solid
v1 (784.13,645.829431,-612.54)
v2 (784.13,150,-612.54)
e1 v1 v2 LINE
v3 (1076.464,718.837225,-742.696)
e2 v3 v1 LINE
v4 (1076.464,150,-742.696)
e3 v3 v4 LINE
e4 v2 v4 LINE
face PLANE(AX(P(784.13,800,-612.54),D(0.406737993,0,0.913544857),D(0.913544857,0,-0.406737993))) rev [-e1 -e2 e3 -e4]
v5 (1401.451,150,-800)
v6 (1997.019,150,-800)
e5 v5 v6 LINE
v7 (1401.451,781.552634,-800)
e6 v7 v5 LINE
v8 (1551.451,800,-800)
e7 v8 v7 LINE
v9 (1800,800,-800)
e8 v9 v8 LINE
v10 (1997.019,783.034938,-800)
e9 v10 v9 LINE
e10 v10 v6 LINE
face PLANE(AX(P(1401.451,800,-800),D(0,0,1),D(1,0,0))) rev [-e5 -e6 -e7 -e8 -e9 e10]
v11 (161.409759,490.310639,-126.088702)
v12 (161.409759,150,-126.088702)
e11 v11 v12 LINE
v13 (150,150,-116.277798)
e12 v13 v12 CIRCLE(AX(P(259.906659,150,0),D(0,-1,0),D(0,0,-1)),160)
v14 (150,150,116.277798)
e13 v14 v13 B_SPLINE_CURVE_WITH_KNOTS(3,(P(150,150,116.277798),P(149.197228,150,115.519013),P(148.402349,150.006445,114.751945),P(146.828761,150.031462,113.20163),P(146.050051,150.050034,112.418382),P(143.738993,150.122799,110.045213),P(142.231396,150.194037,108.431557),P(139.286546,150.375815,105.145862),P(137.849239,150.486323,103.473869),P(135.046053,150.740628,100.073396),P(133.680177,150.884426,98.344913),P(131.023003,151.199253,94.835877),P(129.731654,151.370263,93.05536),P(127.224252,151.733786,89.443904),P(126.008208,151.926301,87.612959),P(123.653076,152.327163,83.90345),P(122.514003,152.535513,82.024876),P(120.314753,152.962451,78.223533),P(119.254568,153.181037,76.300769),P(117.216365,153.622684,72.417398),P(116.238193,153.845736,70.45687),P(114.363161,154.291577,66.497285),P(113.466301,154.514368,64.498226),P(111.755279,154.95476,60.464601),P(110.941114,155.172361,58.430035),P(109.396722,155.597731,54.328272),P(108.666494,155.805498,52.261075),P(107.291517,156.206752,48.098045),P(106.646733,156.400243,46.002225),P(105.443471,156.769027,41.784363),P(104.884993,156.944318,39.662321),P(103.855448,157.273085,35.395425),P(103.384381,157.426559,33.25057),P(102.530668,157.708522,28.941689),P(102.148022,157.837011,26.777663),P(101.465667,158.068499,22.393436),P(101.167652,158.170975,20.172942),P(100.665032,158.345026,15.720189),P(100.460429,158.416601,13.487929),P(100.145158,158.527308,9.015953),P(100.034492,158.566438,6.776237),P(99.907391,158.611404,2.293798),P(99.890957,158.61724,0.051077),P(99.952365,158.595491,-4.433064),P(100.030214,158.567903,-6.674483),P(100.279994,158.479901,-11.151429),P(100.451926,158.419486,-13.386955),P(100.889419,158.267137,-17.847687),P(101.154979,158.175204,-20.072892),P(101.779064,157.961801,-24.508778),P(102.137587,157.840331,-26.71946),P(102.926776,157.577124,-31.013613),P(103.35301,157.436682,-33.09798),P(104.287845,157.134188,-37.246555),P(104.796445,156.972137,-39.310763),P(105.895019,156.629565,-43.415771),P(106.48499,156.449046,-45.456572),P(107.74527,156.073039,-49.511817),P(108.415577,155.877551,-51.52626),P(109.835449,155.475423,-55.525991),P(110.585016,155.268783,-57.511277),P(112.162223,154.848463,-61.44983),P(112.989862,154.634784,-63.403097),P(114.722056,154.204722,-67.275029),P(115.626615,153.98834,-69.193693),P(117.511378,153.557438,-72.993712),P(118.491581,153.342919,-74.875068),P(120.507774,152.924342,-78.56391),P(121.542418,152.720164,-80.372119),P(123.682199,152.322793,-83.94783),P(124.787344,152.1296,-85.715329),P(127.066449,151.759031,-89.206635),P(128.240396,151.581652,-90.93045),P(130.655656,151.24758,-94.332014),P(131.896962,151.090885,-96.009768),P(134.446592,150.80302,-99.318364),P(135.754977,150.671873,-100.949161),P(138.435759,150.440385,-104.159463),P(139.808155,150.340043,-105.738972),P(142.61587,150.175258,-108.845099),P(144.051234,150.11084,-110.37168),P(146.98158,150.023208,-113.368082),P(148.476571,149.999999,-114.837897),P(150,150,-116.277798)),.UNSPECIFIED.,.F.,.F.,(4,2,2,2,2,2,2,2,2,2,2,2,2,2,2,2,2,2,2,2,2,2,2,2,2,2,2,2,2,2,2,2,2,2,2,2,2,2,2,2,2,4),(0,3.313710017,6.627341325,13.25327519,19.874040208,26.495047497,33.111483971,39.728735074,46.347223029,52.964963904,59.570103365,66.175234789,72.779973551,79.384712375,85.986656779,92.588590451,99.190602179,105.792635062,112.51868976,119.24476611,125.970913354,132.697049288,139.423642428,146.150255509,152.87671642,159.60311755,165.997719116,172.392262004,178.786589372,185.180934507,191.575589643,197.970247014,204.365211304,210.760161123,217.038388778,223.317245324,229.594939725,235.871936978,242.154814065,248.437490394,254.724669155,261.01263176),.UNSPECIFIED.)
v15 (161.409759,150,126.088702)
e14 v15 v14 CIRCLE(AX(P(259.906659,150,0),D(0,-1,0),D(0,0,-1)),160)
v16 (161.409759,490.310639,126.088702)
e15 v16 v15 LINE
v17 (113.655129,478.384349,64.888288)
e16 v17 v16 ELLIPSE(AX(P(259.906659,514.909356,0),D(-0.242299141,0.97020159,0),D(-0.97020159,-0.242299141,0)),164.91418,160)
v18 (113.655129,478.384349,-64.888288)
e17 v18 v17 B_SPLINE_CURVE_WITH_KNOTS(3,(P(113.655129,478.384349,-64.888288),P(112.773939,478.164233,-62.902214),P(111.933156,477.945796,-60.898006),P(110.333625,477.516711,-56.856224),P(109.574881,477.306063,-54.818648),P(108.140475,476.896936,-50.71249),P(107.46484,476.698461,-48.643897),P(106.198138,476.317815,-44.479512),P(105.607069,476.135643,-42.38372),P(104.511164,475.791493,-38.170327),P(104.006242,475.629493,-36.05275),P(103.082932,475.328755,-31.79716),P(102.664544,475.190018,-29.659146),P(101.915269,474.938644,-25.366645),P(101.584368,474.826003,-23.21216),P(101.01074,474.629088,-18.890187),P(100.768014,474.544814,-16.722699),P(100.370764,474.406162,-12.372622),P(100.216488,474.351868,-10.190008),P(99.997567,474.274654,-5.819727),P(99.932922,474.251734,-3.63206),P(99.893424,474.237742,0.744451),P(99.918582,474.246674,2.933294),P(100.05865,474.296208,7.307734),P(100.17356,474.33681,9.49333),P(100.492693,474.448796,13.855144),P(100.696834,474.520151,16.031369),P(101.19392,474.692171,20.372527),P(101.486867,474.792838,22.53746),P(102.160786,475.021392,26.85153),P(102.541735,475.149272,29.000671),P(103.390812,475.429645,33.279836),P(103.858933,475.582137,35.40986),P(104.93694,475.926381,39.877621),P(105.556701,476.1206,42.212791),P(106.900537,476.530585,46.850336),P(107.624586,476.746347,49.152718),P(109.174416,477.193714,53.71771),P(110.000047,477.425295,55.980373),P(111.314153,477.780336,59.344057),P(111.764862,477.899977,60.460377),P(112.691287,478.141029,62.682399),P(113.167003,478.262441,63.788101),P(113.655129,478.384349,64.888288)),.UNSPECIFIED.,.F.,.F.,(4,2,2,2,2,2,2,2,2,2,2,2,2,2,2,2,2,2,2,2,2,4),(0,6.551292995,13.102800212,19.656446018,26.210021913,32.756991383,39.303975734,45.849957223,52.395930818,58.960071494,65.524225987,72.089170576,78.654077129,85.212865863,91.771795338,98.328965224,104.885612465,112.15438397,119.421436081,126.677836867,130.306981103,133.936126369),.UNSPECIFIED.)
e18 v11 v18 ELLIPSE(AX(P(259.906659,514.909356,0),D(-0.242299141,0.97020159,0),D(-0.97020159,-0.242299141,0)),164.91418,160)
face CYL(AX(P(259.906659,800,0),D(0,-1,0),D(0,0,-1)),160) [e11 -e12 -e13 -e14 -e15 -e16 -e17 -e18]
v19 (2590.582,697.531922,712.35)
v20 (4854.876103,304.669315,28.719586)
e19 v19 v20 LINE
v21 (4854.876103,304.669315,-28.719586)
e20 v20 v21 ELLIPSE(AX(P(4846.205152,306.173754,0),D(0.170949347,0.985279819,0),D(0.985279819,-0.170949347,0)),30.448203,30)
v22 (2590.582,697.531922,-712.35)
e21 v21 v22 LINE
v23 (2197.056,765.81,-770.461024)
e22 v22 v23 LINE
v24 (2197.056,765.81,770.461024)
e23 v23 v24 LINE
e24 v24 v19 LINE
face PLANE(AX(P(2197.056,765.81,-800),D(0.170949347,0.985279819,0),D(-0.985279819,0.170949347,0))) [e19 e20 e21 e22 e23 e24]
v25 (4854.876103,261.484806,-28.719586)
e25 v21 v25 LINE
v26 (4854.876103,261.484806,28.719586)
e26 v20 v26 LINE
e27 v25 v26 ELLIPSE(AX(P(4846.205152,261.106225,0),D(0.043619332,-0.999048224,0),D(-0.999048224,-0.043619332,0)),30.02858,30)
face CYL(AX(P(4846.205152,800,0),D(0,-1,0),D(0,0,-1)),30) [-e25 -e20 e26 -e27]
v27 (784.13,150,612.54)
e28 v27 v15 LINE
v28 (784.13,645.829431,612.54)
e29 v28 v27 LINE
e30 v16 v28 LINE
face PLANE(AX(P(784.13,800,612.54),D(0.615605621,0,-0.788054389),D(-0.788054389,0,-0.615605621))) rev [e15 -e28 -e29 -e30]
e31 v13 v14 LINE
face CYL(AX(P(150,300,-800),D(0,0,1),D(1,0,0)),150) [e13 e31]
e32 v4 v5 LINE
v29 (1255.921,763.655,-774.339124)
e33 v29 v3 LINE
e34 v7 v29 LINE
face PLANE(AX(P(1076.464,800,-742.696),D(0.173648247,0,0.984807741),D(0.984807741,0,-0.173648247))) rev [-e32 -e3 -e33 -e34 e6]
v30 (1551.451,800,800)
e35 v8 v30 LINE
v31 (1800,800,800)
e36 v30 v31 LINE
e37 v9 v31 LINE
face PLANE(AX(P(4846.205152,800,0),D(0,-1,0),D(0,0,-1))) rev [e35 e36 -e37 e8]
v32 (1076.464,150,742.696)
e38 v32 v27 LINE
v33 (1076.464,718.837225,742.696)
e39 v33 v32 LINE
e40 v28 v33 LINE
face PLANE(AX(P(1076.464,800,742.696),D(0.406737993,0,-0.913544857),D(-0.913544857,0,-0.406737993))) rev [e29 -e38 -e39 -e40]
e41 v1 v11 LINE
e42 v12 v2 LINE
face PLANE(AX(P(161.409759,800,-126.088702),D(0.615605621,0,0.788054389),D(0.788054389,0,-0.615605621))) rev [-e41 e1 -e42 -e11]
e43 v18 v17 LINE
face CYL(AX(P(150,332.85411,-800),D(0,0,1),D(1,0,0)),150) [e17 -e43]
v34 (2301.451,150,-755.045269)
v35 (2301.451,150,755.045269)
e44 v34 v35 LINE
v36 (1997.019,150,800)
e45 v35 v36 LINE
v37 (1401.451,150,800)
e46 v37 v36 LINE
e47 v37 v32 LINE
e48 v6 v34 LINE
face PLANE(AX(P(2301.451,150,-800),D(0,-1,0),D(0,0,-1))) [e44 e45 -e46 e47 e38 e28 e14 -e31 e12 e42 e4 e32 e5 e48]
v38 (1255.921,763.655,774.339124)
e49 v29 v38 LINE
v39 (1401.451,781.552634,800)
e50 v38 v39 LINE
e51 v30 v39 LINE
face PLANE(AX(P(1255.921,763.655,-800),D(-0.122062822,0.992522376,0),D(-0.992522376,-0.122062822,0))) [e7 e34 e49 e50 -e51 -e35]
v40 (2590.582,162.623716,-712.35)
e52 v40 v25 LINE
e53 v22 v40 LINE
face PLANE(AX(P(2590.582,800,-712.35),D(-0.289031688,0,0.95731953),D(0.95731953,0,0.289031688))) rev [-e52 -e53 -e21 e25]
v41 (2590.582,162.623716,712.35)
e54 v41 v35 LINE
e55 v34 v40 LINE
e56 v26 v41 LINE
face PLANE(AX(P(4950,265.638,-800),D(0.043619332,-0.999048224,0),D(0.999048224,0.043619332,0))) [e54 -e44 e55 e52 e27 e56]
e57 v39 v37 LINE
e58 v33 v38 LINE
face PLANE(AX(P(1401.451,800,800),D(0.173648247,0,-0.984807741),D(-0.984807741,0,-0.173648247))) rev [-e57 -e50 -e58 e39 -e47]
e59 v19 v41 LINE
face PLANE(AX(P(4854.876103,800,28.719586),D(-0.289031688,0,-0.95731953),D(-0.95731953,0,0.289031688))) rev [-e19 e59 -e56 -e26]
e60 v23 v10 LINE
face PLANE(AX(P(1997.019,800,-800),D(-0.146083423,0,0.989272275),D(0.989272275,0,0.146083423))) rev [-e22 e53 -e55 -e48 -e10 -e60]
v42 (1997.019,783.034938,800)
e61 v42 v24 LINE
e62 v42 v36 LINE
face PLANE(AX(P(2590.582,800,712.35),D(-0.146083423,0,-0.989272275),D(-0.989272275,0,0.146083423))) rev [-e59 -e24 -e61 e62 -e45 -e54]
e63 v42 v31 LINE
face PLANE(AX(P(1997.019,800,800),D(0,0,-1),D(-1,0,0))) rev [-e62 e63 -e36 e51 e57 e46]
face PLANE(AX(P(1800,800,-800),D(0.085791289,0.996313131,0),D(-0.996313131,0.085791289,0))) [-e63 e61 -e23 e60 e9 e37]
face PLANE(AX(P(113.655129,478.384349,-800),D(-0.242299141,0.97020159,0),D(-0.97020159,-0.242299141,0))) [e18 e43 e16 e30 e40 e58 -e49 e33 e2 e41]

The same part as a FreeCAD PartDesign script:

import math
import FreeCAD as App
import Part
import Sketcher
Q = App.Units.Quantity


def add_polygon(sketch, points):
    """Adds a closed chain of lines whose ends are joined by coincident constraints."""
    first, n = sketch.GeometryCount, len(points)
    for a, b in zip(points, points[1:] + points[:1]):
        sketch.addGeometry(Part.LineSegment(App.Vector(*a, 0), App.Vector(*b, 0)), False)
    for i in range(n):
        sketch.addConstraint(Sketcher.Constraint("Coincident", first + i, 2, first + (i + 1) % n, 1))

doc = App.newDocument("Part")
params = doc.addObject("Spreadsheet::Sheet", "Params")
for row, (alias, value) in enumerate([
    ("sketch1_radius", "160 mm"),
    ("sketch1_radius2", "30 mm"),
    ("pad1_length", "800 mm"),
    ("sketch2_radius", "150 mm"),
    ("sketch2_height", "1822.06 mm"),
], start=1):
    params.set(f"A{row}", alias)
    params.set(f"B{row}", "=" + value)
    params.setAlias(f"B{row}", alias)

body = doc.addObject("PartDesign::Body", "Body")

sketch1 = body.newObject("Sketcher::SketchObject", "Sketch")
sketch1.AttachmentSupport = (doc.getObject("XZ_Plane"), [""])
sketch1.MapMode = "FlatFace"
sketch1.addGeometry([
    Part.LineSegment(App.Vector(784.13, -612.54, 0), App.Vector(161.409759, -126.088702, 0)),
    Part.ArcOfCircle(Part.Circle(App.Vector(259.906659, 0, 0), App.Vector(0, 0, 1), 160), math.radians(127.995939), math.radians(232.004061)),
    Part.LineSegment(App.Vector(161.409759, 126.088702, 0), App.Vector(784.13, 612.54, 0)),
    Part.LineSegment(App.Vector(784.13, 612.54, 0), App.Vector(1076.464, 742.696, 0)),
    Part.LineSegment(App.Vector(1076.464, 742.696, 0), App.Vector(1401.451, 800, 0)),
    Part.LineSegment(App.Vector(1401.451, 800, 0), App.Vector(1997.019, 800, 0)),
    Part.LineSegment(App.Vector(1997.019, 800, 0), App.Vector(2590.582, 712.35, 0)),
    Part.LineSegment(App.Vector(2590.582, 712.35, 0), App.Vector(4854.876103, 28.719586, 0)),
    Part.ArcOfCircle(Part.Circle(App.Vector(4846.205152, 0, 0), App.Vector(0, 0, 1), 30), math.radians(-73.200007), math.radians(73.200007)),
    Part.LineSegment(App.Vector(4854.876103, -28.719586, 0), App.Vector(2590.582, -712.35, 0)),
    Part.LineSegment(App.Vector(2590.582, -712.35, 0), App.Vector(1997.019, -800, 0)),
    Part.LineSegment(App.Vector(1997.019, -800, 0), App.Vector(1401.451, -800, 0)),
    Part.LineSegment(App.Vector(1401.451, -800, 0), App.Vector(1076.464, -742.696, 0)),
    Part.LineSegment(App.Vector(1076.464, -742.696, 0), App.Vector(784.13, -612.54, 0)),
], False)
sketch1.addConstraint([
    Sketcher.Constraint("Coincident", 0, 2, 1, 2),
    Sketcher.Constraint("Coincident", 1, 1, 2, 1),
    Sketcher.Constraint("Coincident", 2, 2, 3, 1),
    Sketcher.Constraint("Coincident", 3, 2, 4, 1),
    Sketcher.Constraint("Coincident", 4, 2, 5, 1),
    Sketcher.Constraint("Coincident", 5, 2, 6, 1),
    Sketcher.Constraint("Coincident", 6, 2, 7, 1),
    Sketcher.Constraint("Coincident", 7, 2, 8, 2),
    Sketcher.Constraint("Coincident", 8, 1, 9, 1),
    Sketcher.Constraint("Coincident", 9, 2, 10, 1),
    Sketcher.Constraint("Coincident", 10, 2, 11, 1),
    Sketcher.Constraint("Coincident", 11, 2, 12, 1),
    Sketcher.Constraint("Coincident", 12, 2, 13, 1),
    Sketcher.Constraint("Coincident", 13, 2, 0, 1),
    Sketcher.Constraint("Horizontal", 5),
    Sketcher.Constraint("Horizontal", 11),
    Sketcher.Constraint("PointOnObject", 1, 3, -1),
    Sketcher.Constraint("PointOnObject", 8, 3, -1),
    Sketcher.Constraint("Radius", 1, Q("160 mm")),
    Sketcher.Constraint("Radius", 8, Q("30 mm")),
    Sketcher.Constraint("DistanceY", -1, 1, 4, 2, Q("800 mm")),
    Sketcher.Constraint("DistanceY", 10, 2, -1, 1, Q("800 mm")),
    Sketcher.Constraint("DistanceY", 9, 2, 6, 2, Q("1424.7 mm")),
    Sketcher.Constraint("DistanceX", 5, 1, 5, 2, Q("595.568 mm")),
    Sketcher.Constraint("DistanceX", 11, 2, 11, 1, Q("595.568 mm")),
    Sketcher.Constraint("DistanceX", -1, 1, 2, 2, Q("784.13 mm")),
    Sketcher.Constraint("DistanceY", -1, 1, 2, 2, Q("612.54 mm")),
    Sketcher.Constraint("DistanceY", -1, 1, 6, 2, Q("712.35 mm")),
    Sketcher.Constraint("DistanceX", -1, 1, 13, 2, Q("784.13 mm")),
    Sketcher.Constraint("DistanceY", 13, 2, -1, 1, Q("612.54 mm")),
    Sketcher.Constraint("DistanceX", -1, 1, 3, 2, Q("1076.464 mm")),
    Sketcher.Constraint("DistanceY", -1, 1, 3, 2, Q("742.696 mm")),
    Sketcher.Constraint("DistanceX", -1, 1, 4, 2, Q("1401.451 mm")),
    Sketcher.Constraint("DistanceX", -1, 1, 6, 2, Q("2590.582 mm")),
    Sketcher.Constraint("DistanceX", -1, 1, 9, 2, Q("2590.582 mm")),
    Sketcher.Constraint("DistanceX", -1, 1, 10, 2, Q("1997.019 mm")),
    Sketcher.Constraint("DistanceX", -1, 1, 12, 2, Q("1076.464 mm")),
    Sketcher.Constraint("DistanceY", 12, 2, -1, 1, Q("742.696 mm")),
    Sketcher.Constraint("DistanceX", 0, 2, 1, 3, Q("98.496899 mm")),
    Sketcher.Constraint("DistanceX", 1, 1, 1, 3, Q("98.496899 mm")),
    Sketcher.Constraint("Distance", 0, Q("790.199572 mm")),
    Sketcher.Constraint("Distance", 7, Q("2365.24382 mm")),
    Sketcher.Constraint("Distance", 9, Q("2365.24382 mm")),
    Sketcher.Constraint("DistanceX", 8, 3, 7, 2, Q("8.670951 mm")),
])
sketch1.setExpression("Constraints[18]", "Params.sketch1_radius")
sketch1.setExpression("Constraints[19]", "Params.sketch1_radius2")
pad1 = body.newObject("PartDesign::Pad", "Pad")
pad1.Profile = sketch1
pad1.setExpression("Length", "Params.pad1_length")
pad1.Reversed = True

sketch2 = body.newObject("Sketcher::SketchObject", "Sketch001")
sketch2.AttachmentSupport = (doc.getObject("XY_Plane"), [""])
sketch2.MapMode = "FlatFace"
add_polygon(sketch2, [(-411, 1311), (-411, -511), (5387, -511), (5387, 1311)])
sketch2.addGeometry(Part.ArcOfCircle(Part.Circle(App.Vector(150, 300, 0), App.Vector(0, 0, 1), 150), math.radians(180), math.radians(270)), False)
sketch2.addGeometry(Part.LineSegment(App.Vector(0, 300, 0), App.Vector(0, 333, 0)), False)
sketch2.addGeometry(Part.ArcOfCircle(Part.Circle(App.Vector(150, 333, 0), App.Vector(0, 0, 1), 150), math.radians(104), math.radians(180)), False)
sketch2.addGeometry(Part.LineSegment(App.Vector(114, 478, 0), App.Vector(1256, 764, 0)), False)
sketch2.addGeometry(Part.LineSegment(App.Vector(1256, 764, 0), App.Vector(1551, 800, 0)), False)
sketch2.addGeometry(Part.LineSegment(App.Vector(1551, 800, 0), App.Vector(1800, 800, 0)), False)
sketch2.addGeometry(Part.LineSegment(App.Vector(1800, 800, 0), App.Vector(2197, 766, 0)), False)
sketch2.addGeometry(Part.LineSegment(App.Vector(2197, 766, 0), App.Vector(4950, 288, 0)), False)
sketch2.addGeometry(Part.LineSegment(App.Vector(4950, 288, 0), App.Vector(4950, 266, 0)), False)
sketch2.addGeometry(Part.LineSegment(App.Vector(4950, 266, 0), App.Vector(2301, 150, 0)), False)
sketch2.addGeometry(Part.LineSegment(App.Vector(2301, 150, 0), App.Vector(150, 150, 0)), False)
sketch2.addConstraint([
    Sketcher.Constraint("Tangent", 4, 1, 5, 1),
    Sketcher.Constraint("Tangent", 5, 2, 6, 2),
    Sketcher.Constraint("Tangent", 6, 1, 7, 1),
    Sketcher.Constraint("Coincident", 7, 2, 8, 1),
    Sketcher.Constraint("Coincident", 8, 2, 9, 1),
    Sketcher.Constraint("Coincident", 9, 2, 10, 1),
    Sketcher.Constraint("Coincident", 10, 2, 11, 1),
    Sketcher.Constraint("Coincident", 11, 2, 12, 1),
    Sketcher.Constraint("Coincident", 12, 2, 13, 1),
    Sketcher.Constraint("Coincident", 13, 2, 14, 1),
    Sketcher.Constraint("Tangent", 14, 2, 4, 2),
    Sketcher.Constraint("Vertical", 0),
    Sketcher.Constraint("Horizontal", 1),
    Sketcher.Constraint("Vertical", 2),
    Sketcher.Constraint("Horizontal", 3),
    Sketcher.Constraint("Vertical", 5),
    Sketcher.Constraint("Horizontal", 9),
    Sketcher.Constraint("Vertical", 12),
    Sketcher.Constraint("Horizontal", 14),
    Sketcher.Constraint("Equal", 4, 6),
    Sketcher.Constraint("PointOnObject", 4, 1, -2),
    Sketcher.Constraint("Radius", 4, Q("150 mm")),
    Sketcher.Constraint("DistanceY", -1, 1, 4, 3, Q("300 mm")),
    Sketcher.Constraint("DistanceY", -1, 1, 8, 2, Q("800 mm")),
    Sketcher.Constraint("DistanceX", -1, 1, 9, 2, Q("1800 mm")),
    Sketcher.Constraint("DistanceX", -1, 1, 11, 2, Q("4950 mm")),
    Sketcher.Constraint("Angle", 13, Q("-177.500003 deg")),
    Sketcher.Constraint("DistanceX", 8, 2, 13, 2, Q("750 mm")),
    Sketcher.Constraint("DistanceY", 0, 2, 0, 1, Q("1822.06 mm")),
    Sketcher.Constraint("DistanceX", 1, 1, 1, 2, Q("5798.358 mm")),
    Sketcher.Constraint("DistanceX", 9, 1, 9, 2, Q("248.549 mm")),
    Sketcher.Constraint("DistanceY", 12, 2, 12, 1, Q("22.527 mm")),
    Sketcher.Constraint("DistanceY", 0, 2, -1, 1, Q("511.03 mm")),
    Sketcher.Constraint("DistanceY", -1, 1, 10, 2, Q("765.81 mm")),
    Sketcher.Constraint("DistanceX", 7, 2, 8, 2, Q("295.53 mm")),
    Sketcher.Constraint("Distance", 7, Q("1177.348999 mm")),
    Sketcher.Constraint("DistanceX", 0, 2, -1, 1, Q("411.123 mm")),
    Sketcher.Constraint("DistanceY", -1, 1, 7, 2, Q("763.655 mm")),
    Sketcher.Constraint("DistanceX", -1, 1, 10, 2, Q("2197.056 mm")),
])
sketch2.setExpression("Constraints[25]", "Params.sketch2_radius")
sketch2.setExpression("Constraints[32]", "Params.sketch2_height")
pocket1 = body.newObject("PartDesign::Pocket", "Pocket")
pocket1.Profile = sketch2
pocket1.Type = "ThroughAll"
pocket1.Midplane = True

doc.recompute()
